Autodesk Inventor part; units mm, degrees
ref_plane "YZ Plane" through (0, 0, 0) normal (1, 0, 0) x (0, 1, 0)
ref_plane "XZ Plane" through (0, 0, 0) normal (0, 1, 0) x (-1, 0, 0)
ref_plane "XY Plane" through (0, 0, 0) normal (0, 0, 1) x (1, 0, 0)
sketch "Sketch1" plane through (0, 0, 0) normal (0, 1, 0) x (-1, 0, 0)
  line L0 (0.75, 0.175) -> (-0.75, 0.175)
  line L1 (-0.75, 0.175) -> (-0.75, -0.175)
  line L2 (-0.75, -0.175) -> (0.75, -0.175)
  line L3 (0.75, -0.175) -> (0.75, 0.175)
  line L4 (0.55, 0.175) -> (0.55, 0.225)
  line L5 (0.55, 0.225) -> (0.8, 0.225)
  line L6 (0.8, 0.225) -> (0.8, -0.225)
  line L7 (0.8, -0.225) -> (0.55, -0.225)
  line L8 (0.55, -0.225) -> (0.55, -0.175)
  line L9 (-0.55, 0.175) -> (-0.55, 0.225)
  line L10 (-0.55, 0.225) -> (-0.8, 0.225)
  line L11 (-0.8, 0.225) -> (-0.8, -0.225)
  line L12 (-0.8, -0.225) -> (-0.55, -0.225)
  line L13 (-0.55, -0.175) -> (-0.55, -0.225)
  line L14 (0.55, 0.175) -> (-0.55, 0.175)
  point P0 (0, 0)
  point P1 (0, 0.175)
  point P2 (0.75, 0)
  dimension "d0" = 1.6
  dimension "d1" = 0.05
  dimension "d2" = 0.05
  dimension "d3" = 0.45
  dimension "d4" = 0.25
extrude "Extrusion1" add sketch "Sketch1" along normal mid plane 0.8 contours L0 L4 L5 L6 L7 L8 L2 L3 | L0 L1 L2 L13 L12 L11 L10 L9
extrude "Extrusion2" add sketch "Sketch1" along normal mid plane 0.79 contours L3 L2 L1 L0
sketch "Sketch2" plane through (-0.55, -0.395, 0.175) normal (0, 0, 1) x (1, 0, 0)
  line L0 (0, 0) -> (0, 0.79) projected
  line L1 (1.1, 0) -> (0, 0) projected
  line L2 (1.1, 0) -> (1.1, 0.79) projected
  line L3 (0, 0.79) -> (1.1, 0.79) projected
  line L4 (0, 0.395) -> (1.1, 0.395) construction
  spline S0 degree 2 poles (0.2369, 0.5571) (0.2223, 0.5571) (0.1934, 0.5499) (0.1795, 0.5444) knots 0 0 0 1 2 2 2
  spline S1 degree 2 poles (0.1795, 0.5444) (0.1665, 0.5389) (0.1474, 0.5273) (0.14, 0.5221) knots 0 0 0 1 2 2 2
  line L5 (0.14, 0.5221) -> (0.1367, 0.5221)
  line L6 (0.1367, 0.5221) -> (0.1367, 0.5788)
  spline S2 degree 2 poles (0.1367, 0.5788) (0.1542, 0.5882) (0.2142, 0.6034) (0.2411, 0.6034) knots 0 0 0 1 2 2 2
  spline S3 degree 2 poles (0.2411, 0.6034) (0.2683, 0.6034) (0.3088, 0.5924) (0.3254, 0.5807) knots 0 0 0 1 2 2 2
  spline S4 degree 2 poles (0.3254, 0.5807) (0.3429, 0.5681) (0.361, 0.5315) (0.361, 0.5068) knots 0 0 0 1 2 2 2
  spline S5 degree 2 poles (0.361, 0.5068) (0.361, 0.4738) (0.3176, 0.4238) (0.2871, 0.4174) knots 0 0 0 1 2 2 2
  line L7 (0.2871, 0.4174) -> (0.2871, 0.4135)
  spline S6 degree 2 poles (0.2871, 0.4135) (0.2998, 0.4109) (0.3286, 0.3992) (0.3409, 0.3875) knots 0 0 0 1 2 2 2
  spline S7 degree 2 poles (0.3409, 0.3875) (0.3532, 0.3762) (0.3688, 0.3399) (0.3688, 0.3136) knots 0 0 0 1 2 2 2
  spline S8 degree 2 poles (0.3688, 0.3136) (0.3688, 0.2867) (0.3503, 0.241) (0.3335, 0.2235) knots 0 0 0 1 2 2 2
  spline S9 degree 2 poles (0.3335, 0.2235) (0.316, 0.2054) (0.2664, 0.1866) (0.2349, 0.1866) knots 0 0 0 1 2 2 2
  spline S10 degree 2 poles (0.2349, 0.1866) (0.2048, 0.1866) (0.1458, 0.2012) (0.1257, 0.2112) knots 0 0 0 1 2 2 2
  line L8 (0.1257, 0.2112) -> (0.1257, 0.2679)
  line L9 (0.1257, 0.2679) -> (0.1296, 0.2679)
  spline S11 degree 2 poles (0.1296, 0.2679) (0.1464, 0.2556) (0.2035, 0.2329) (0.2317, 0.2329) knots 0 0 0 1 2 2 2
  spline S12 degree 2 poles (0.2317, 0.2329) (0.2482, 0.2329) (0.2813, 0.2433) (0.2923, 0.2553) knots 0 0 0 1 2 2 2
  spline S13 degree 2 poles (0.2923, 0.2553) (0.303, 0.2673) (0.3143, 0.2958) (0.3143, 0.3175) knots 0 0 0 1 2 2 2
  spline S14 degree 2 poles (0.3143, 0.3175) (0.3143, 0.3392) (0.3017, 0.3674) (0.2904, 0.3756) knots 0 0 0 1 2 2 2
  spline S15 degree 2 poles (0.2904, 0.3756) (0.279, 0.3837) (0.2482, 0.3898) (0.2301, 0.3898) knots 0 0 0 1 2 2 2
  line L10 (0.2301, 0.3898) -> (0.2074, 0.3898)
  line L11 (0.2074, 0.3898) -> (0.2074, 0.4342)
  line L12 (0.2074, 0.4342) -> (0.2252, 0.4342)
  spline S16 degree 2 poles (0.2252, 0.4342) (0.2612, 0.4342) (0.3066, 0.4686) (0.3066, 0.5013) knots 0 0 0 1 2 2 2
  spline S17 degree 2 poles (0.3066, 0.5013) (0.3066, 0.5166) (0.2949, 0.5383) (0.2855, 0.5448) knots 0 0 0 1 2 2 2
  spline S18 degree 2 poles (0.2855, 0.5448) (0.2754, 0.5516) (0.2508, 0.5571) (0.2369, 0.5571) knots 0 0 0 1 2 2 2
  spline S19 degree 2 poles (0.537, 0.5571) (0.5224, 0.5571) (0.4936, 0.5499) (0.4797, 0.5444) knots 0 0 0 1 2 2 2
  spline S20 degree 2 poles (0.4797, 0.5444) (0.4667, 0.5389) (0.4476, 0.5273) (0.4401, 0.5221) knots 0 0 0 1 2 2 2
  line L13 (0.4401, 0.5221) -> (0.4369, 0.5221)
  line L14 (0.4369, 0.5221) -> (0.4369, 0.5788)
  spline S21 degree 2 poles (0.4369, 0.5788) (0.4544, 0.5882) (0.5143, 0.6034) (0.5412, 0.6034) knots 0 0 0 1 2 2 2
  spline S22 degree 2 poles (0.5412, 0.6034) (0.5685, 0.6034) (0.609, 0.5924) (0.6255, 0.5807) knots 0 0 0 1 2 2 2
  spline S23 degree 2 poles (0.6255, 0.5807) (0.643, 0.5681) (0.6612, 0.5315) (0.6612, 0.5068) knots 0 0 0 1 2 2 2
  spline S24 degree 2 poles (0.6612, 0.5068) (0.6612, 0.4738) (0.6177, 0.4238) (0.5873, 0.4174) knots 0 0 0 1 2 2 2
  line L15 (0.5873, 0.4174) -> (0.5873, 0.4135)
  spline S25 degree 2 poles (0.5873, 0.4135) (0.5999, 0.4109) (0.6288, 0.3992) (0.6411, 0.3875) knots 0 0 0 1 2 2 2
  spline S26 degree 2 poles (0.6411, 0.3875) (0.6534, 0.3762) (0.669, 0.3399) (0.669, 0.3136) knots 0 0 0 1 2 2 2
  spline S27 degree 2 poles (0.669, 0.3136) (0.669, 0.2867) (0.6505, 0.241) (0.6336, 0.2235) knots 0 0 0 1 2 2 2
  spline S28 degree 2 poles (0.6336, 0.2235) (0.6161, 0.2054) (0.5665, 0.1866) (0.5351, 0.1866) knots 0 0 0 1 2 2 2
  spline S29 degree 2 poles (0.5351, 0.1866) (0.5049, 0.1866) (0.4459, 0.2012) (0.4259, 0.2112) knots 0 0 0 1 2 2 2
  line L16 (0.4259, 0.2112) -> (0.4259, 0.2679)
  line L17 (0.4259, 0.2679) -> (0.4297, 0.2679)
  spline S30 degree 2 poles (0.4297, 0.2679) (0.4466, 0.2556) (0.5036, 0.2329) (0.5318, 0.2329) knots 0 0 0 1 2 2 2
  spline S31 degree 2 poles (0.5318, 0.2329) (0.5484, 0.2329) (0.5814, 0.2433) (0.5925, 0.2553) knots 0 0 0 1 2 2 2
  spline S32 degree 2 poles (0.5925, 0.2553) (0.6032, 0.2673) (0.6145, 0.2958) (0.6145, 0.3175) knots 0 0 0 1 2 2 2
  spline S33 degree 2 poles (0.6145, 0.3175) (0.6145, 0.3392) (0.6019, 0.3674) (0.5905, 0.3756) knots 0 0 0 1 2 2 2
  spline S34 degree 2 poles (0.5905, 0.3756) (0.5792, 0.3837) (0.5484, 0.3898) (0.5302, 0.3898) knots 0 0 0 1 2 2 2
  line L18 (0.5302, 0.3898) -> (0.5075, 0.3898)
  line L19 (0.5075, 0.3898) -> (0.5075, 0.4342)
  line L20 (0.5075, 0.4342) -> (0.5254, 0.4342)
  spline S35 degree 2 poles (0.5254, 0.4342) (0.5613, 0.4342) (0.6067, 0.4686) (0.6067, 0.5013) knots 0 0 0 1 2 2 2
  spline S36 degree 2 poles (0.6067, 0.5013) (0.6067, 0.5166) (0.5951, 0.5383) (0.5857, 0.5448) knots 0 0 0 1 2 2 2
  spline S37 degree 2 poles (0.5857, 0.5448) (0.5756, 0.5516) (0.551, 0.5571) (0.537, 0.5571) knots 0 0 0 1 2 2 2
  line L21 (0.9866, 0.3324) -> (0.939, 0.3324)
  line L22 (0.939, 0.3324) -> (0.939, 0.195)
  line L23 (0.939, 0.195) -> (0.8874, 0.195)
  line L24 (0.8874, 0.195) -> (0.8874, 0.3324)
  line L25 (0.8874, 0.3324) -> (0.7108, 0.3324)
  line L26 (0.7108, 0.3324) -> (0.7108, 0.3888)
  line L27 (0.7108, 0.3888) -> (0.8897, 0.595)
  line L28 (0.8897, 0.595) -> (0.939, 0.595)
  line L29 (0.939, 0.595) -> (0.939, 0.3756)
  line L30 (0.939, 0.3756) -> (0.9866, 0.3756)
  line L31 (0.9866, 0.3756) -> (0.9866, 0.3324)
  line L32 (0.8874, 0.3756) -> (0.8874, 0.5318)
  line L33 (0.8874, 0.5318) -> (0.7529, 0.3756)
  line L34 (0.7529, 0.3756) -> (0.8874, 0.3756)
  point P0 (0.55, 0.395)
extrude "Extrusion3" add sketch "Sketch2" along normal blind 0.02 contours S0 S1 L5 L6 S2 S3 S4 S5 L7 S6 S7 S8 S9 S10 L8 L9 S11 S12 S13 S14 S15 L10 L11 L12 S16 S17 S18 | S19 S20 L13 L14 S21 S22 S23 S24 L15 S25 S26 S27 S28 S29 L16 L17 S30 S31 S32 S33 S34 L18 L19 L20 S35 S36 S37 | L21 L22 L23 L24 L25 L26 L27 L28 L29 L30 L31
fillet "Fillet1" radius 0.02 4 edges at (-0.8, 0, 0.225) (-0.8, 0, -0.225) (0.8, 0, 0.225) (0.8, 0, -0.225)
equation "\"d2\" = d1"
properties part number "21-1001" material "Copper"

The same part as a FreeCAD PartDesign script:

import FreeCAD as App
import Part
import Sketcher

V = App.Vector
Q = App.Units.Quantity


def edges_at(feature, points):
    """Names of the edges that pass closest to the given points."""
    edges = feature.Shape.Edges
    near = lambda p: min(range(len(edges)), key=lambda i: edges[i].distToShape(Part.Vertex(*p))[0])
    return sorted({f"Edge{near(p) + 1}" for p in points})

doc = App.newDocument("Part")
body = doc.addObject("PartDesign::Body", "Body")
body.AllowCompound = True

# Sketch on XZ plane
sketch1 = body.newObject("Sketcher::SketchObject", "Sketch")
sketch1.AttachmentSupport = (doc.getObject("XZ_Plane"), [""])
sketch1.MapMode = "FlatFace"
sketch1.addGeometry([
    Part.LineSegment(V(-0.55, 0.17, 0), V(-0.75, 0.17, 0)),  # 0
    Part.LineSegment(V(-0.75, 0.17, 0), V(-0.75, -0.17, 0)),  # 1
    Part.LineSegment(V(-0.75, -0.17, 0), V(-0.55, -0.17, 0)),  # 2
    Part.LineSegment(V(-0.55, -0.17, 0), V(-0.55, -0.23, 0)),  # 3
    Part.LineSegment(V(-0.55, -0.23, 0), V(-0.8, -0.23, 0)),  # 4
    Part.LineSegment(V(-0.8, -0.23, 0), V(-0.8, 0.23, 0)),  # 5
    Part.LineSegment(V(-0.8, 0.23, 0), V(-0.55, 0.23, 0)),  # 6
    Part.LineSegment(V(-0.55, 0.23, 0), V(-0.55, 0.17, 0)),  # 7
    Part.LineSegment(V(0.75, 0.17, 0), V(0.55, 0.17, 0)),  # 8
    Part.LineSegment(V(0.55, 0.17, 0), V(0.55, 0.23, 0)),  # 9
    Part.LineSegment(V(0.55, 0.23, 0), V(0.8, 0.23, 0)),  # 10
    Part.LineSegment(V(0.8, 0.23, 0), V(0.8, -0.23, 0)),  # 11
    Part.LineSegment(V(0.8, -0.23, 0), V(0.55, -0.23, 0)),  # 12
    Part.LineSegment(V(0.55, -0.23, 0), V(0.55, -0.17, 0)),  # 13
    Part.LineSegment(V(0.55, -0.17, 0), V(0.75, -0.17, 0)),  # 14
    Part.LineSegment(V(0.75, -0.17, 0), V(0.75, 0.17, 0)),  # 15
], False)
sketch1.addConstraint([
    Sketcher.Constraint("Coincident", 0, 2, 1, 1),
    Sketcher.Constraint("Coincident", 1, 2, 2, 1),
    Sketcher.Constraint("Coincident", 2, 2, 3, 1),
    Sketcher.Constraint("Coincident", 3, 2, 4, 1),
    Sketcher.Constraint("Coincident", 4, 2, 5, 1),
    Sketcher.Constraint("Coincident", 5, 2, 6, 1),
    Sketcher.Constraint("Coincident", 6, 2, 7, 1),
    Sketcher.Constraint("Coincident", 7, 2, 0, 1),
    Sketcher.Constraint("Coincident", 8, 2, 9, 1),
    Sketcher.Constraint("Coincident", 9, 2, 10, 1),
    Sketcher.Constraint("Coincident", 10, 2, 11, 1),
    Sketcher.Constraint("Coincident", 11, 2, 12, 1),
    Sketcher.Constraint("Coincident", 12, 2, 13, 1),
    Sketcher.Constraint("Coincident", 13, 2, 14, 1),
    Sketcher.Constraint("Coincident", 14, 2, 15, 1),
    Sketcher.Constraint("Coincident", 15, 2, 8, 1),
    Sketcher.Constraint("Horizontal", 0),
    Sketcher.Constraint("Vertical", 1),
    Sketcher.Constraint("Horizontal", 2),
    Sketcher.Constraint("Vertical", 3),
    Sketcher.Constraint("Horizontal", 4),
    Sketcher.Constraint("Vertical", 5),
    Sketcher.Constraint("Horizontal", 6),
    Sketcher.Constraint("Vertical", 7),
    Sketcher.Constraint("Horizontal", 8),
    Sketcher.Constraint("Vertical", 9),
    Sketcher.Constraint("Horizontal", 10),
    Sketcher.Constraint("Vertical", 11),
    Sketcher.Constraint("Horizontal", 12),
    Sketcher.Constraint("Vertical", 13),
    Sketcher.Constraint("Horizontal", 14),
    Sketcher.Constraint("Vertical", 15),
    Sketcher.Constraint("Symmetric", 2, 2, 8, 2, -1, 1),
    Sketcher.Constraint("Symmetric", 4, 2, 10, 2, -1, 1),
    Sketcher.Constraint("Symmetric", 6, 2, 12, 2, -1, 1),
    Sketcher.Constraint("Symmetric", 0, 2, 14, 2, -1, 1),
    Sketcher.Constraint("Symmetric", 7, 2, 8, 2, -2),
    Sketcher.Constraint("Horizontal", 6, 2, 9, 2),
    Sketcher.Constraint("DistanceX", 4, 2, 4, 1, 0.25),
    Sketcher.Constraint("DistanceY", 3, 2, 3, 1, 0.05),
    Sketcher.Constraint("DistanceY", 5, 1, 5, 2, 0.45),
    Sketcher.Constraint("DistanceX", 4, 2, 1, 2, 0.05),
    Sketcher.Constraint("DistanceX", 4, 2, -1, 1, 0.8),
])
pad1 = body.newObject("PartDesign::Pad", "Pad")
pad1.Profile = sketch1
pad1.Length = 0.8
pad1.Midplane = True

# Sketch on XZ plane
sketch2 = body.newObject("Sketcher::SketchObject", "Sketch001")
sketch2.AttachmentSupport = (doc.getObject("XZ_Plane"), [""])
sketch2.MapMode = "FlatFace"
sketch2.addGeometry([
    Part.LineSegment(V(-0.75, -0.17, 0), V(-0.75, 0.17, 0)),
    Part.LineSegment(V(-0.75, 0.17, 0), V(0.75, 0.17, 0)),
    Part.LineSegment(V(0.75, 0.17, 0), V(0.75, -0.17, 0)),
    Part.LineSegment(V(0.75, -0.17, 0), V(-0.75, -0.17, 0)),
], False)
sketch2.addConstraint([
    Sketcher.Constraint("Coincident", 0, 2, 1, 1),
    Sketcher.Constraint("Coincident", 1, 2, 2, 1),
    Sketcher.Constraint("Coincident", 2, 2, 3, 1),
    Sketcher.Constraint("Coincident", 3, 2, 0, 1),
    Sketcher.Constraint("Vertical", 0),
    Sketcher.Constraint("Horizontal", 1),
    Sketcher.Constraint("Vertical", 2),
    Sketcher.Constraint("Horizontal", 3),
    Sketcher.Constraint("Symmetric", 0, 2, 2, 2, -1, 1),
    Sketcher.Constraint("DistanceX", 1, 1, 1, 2, 1.5),
    Sketcher.Constraint("DistanceY", 0, 1, 0, 2, 0.35),
])
pad2 = body.newObject("PartDesign::Pad", "Pad001")
pad2.Profile = sketch2
pad2.Length = 0.79
pad2.Midplane = True

# Sketch on XY plane
sketch3 = body.newObject("Sketcher::SketchObject", "Sketch002")
sketch3.AttachmentSupport = (doc.getObject("XY_Plane"), [""])
sketch3.MapMode = "FlatFace"
sketch3.AttachmentOffset = App.Placement(V(0, 0, 0.175), App.Rotation())
sketch3.addGeometry([
    Part.BSplineCurve([V(-0.3131, 0.1621, 0), V(-0.3277, 0.1621, 0), V(-0.3566, 0.1549, 0), V(-0.3705, 0.1494, 0)], [3, 1, 3], [0, 1, 2], False, 2, [1, 1, 1, 1], False),  # 0
    Part.BSplineCurve([V(-0.2645, 0.1498, 0), V(-0.2746, 0.1566, 0), V(-0.2992, 0.1621, 0), V(-0.3131, 0.1621, 0)], [3, 1, 3], [0, 1, 2], False, 2, [1, 1, 1, 1], False),  # 1
    Part.BSplineCurve([V(-0.2434, 0.1063, 0), V(-0.2434, 0.1216, 0), V(-0.2551, 0.1433, 0), V(-0.2645, 0.1498, 0)], [3, 1, 3], [0, 1, 2], False, 2, [1, 1, 1, 1], False),  # 2
    Part.BSplineCurve([V(-0.3248, 0.0392, 0), V(-0.2888, 0.0392, 0), V(-0.2434, 0.0736, 0), V(-0.2434, 0.1063, 0)], [3, 1, 3], [0, 1, 2], False, 2, [1, 1, 1, 1], False),  # 3
    Part.LineSegment(V(-0.3248, 0.0392, 0), V(-0.3426, 0.0392, 0)),  # 4
    Part.LineSegment(V(-0.3426, 0.0392, 0), V(-0.3426, -0.0052, 0)),  # 5
    Part.LineSegment(V(-0.3426, -0.0052, 0), V(-0.3199, -0.0052, 0)),  # 6
    Part.BSplineCurve([V(-0.2596, -0.0194, 0), V(-0.271, -0.0113, 0), V(-0.3018, -0.0052, 0), V(-0.3199, -0.0052, 0)], [3, 1, 3], [0, 1, 2], False, 2, [1, 1, 1, 1], False),  # 7
    Part.BSplineCurve([V(-0.2357, -0.0775, 0), V(-0.2357, -0.0558, 0), V(-0.2483, -0.0276, 0), V(-0.2596, -0.0194, 0)], [3, 1, 3], [0, 1, 2], False, 2, [1, 1, 1, 1], False),  # 8
    Part.BSplineCurve([V(-0.2577, -0.1397, 0), V(-0.247, -0.1277, 0), V(-0.2357, -0.0992, 0), V(-0.2357, -0.0775, 0)], [3, 1, 3], [0, 1, 2], False, 2, [1, 1, 1, 1], False),  # 9
    Part.BSplineCurve([V(-0.3183, -0.1621, 0), V(-0.3018, -0.1621, 0), V(-0.2687, -0.1517, 0), V(-0.2577, -0.1397, 0)], [3, 1, 3], [0, 1, 2], False, 2, [1, 1, 1, 1], False),  # 10
    Part.BSplineCurve([V(-0.4204, -0.1271, 0), V(-0.4036, -0.1394, 0), V(-0.3465, -0.1621, 0), V(-0.3183, -0.1621, 0)], [3, 1, 3], [0, 1, 2], False, 2, [1, 1, 1, 1], False),  # 11
    Part.LineSegment(V(-0.4204, -0.1271, 0), V(-0.4243, -0.1271, 0)),  # 12
    Part.LineSegment(V(-0.4243, -0.1271, 0), V(-0.4243, -0.1838, 0)),  # 13
    Part.BSplineCurve([V(-0.3151, -0.2084, 0), V(-0.3452, -0.2084, 0), V(-0.4042, -0.1938, 0), V(-0.4243, -0.1838, 0)], [3, 1, 3], [0, 1, 2], False, 2, [1, 1, 1, 1], False),  # 14
    Part.BSplineCurve([V(-0.2165, -0.1715, 0), V(-0.234, -0.1896, 0), V(-0.2836, -0.2084, 0), V(-0.3151, -0.2084, 0)], [3, 1, 3], [0, 1, 2], False, 2, [1, 1, 1, 1], False),  # 15
    Part.BSplineCurve([V(-0.1812, -0.0814, 0), V(-0.1812, -0.1083, 0), V(-0.1997, -0.154, 0), V(-0.2165, -0.1715, 0)], [3, 1, 3], [0, 1, 2], False, 2, [1, 1, 1, 1], False),  # 16
    Part.BSplineCurve([V(-0.2091, -0.0075, 0), V(-0.1968, -0.0188, 0), V(-0.1812, -0.0551, 0), V(-0.1812, -0.0814, 0)], [3, 1, 3], [0, 1, 2], False, 2, [1, 1, 1, 1], False),  # 17
    Part.BSplineCurve([V(-0.2629, 0.0185, 0), V(-0.2502, 0.0159, 0), V(-0.2214, 0.0042, 0), V(-0.2091, -0.0075, 0)], [3, 1, 3], [0, 1, 2], False, 2, [1, 1, 1, 1], False),  # 18
    Part.LineSegment(V(-0.2629, 0.0185, 0), V(-0.2629, 0.0224, 0)),  # 19
    Part.BSplineCurve([V(-0.189, 0.1118, 0), V(-0.189, 0.0788, 0), V(-0.2324, 0.0288, 0), V(-0.2629, 0.0224, 0)], [3, 1, 3], [0, 1, 2], False, 2, [1, 1, 1, 1], False),  # 20
    Part.BSplineCurve([V(-0.2246, 0.1857, 0), V(-0.2071, 0.1731, 0), V(-0.189, 0.1365, 0), V(-0.189, 0.1118, 0)], [3, 1, 3], [0, 1, 2], False, 2, [1, 1, 1, 1], False),  # 21
    Part.BSplineCurve([V(-0.3089, 0.2084, 0), V(-0.2817, 0.2084, 0), V(-0.2412, 0.1974, 0), V(-0.2246, 0.1857, 0)], [3, 1, 3], [0, 1, 2], False, 2, [1, 1, 1, 1], False),  # 22
    Part.BSplineCurve([V(-0.4133, 0.1838, 0), V(-0.3958, 0.1932, 0), V(-0.3358, 0.2084, 0), V(-0.3089, 0.2084, 0)], [3, 1, 3], [0, 1, 2], False, 2, [1, 1, 1, 1], False),  # 23
    Part.LineSegment(V(-0.4133, 0.1838, 0), V(-0.4133, 0.1271, 0)),  # 24
    Part.LineSegment(V(-0.4133, 0.1271, 0), V(-0.41, 0.1271, 0)),  # 25
    Part.BSplineCurve([V(-0.3705, 0.1494, 0), V(-0.3835, 0.1439, 0), V(-0.4026, 0.1323, 0), V(-0.41, 0.1271, 0)], [3, 1, 3], [0, 1, 2], False, 2, [1, 1, 1, 1], False),  # 26
    Part.BSplineCurve([V(-0.013, 0.1621, 0), V(-0.0276, 0.1621, 0), V(-0.0564, 0.1549, 0), V(-0.0703, 0.1494, 0)], [3, 1, 3], [0, 1, 2], False, 2, [1, 1, 1, 1], False),  # 27
    Part.BSplineCurve([V(0.0357, 0.1498, 0), V(0.0256, 0.1566, 0), V(0.001, 0.1621, 0), V(-0.013, 0.1621, 0)], [3, 1, 3], [0, 1, 2], False, 2, [1, 1, 1, 1], False),  # 28
    Part.BSplineCurve([V(0.0567, 0.1063, 0), V(0.0567, 0.1216, 0), V(0.0451, 0.1433, 0), V(0.0357, 0.1498, 0)], [3, 1, 3], [0, 1, 2], False, 2, [1, 1, 1, 1], False),  # 29
    Part.BSplineCurve([V(-0.0246, 0.0392, 0), V(0.0113, 0.0392, 0), V(0.0567, 0.0736, 0), V(0.0567, 0.1063, 0)], [3, 1, 3], [0, 1, 2], False, 2, [1, 1, 1, 1], False),  # 30
    Part.LineSegment(V(-0.0246, 0.0392, 0), V(-0.0425, 0.0392, 0)),  # 31
    Part.LineSegment(V(-0.0425, 0.0392, 0), V(-0.0425, -0.0052, 0)),  # 32
    Part.LineSegment(V(-0.0425, -0.0052, 0), V(-0.0198, -0.0052, 0)),  # 33
    Part.BSplineCurve([V(0.0405, -0.0194, 0), V(0.0292, -0.0113, 0), V(-0.0016, -0.0052, 0), V(-0.0198, -0.0052, 0)], [3, 1, 3], [0, 1, 2], False, 2, [1, 1, 1, 1], False),  # 34
    Part.BSplineCurve([V(0.0645, -0.0775, 0), V(0.0645, -0.0558, 0), V(0.0519, -0.0276, 0), V(0.0405, -0.0194, 0)], [3, 1, 3], [0, 1, 2], False, 2, [1, 1, 1, 1], False),  # 35
    Part.BSplineCurve([V(0.0425, -0.1397, 0), V(0.0532, -0.1277, 0), V(0.0645, -0.0992, 0), V(0.0645, -0.0775, 0)], [3, 1, 3], [0, 1, 2], False, 2, [1, 1, 1, 1], False),  # 36
    Part.BSplineCurve([V(-0.0182, -0.1621, 0), V(-0.0016, -0.1621, 0), V(0.0314, -0.1517, 0), V(0.0425, -0.1397, 0)], [3, 1, 3], [0, 1, 2], False, 2, [1, 1, 1, 1], False),  # 37
    Part.BSplineCurve([V(-0.1203, -0.1271, 0), V(-0.1034, -0.1394, 0), V(-0.0464, -0.1621, 0), V(-0.0182, -0.1621, 0)], [3, 1, 3], [0, 1, 2], False, 2, [1, 1, 1, 1], False),  # 38
    Part.LineSegment(V(-0.1203, -0.1271, 0), V(-0.1241, -0.1271, 0)),  # 39
    Part.LineSegment(V(-0.1241, -0.1271, 0), V(-0.1241, -0.1838, 0)),  # 40
    Part.BSplineCurve([V(-0.0149, -0.2084, 0), V(-0.0451, -0.2084, 0), V(-0.1041, -0.1938, 0), V(-0.1241, -0.1838, 0)], [3, 1, 3], [0, 1, 2], False, 2, [1, 1, 1, 1], False),  # 41
    Part.BSplineCurve([V(0.0836, -0.1715, 0), V(0.0661, -0.1896, 0), V(0.0165, -0.2084, 0), V(-0.0149, -0.2084, 0)], [3, 1, 3], [0, 1, 2], False, 2, [1, 1, 1, 1], False),  # 42
    Part.BSplineCurve([V(0.119, -0.0814, 0), V(0.119, -0.1083, 0), V(0.1005, -0.154, 0), V(0.0836, -0.1715, 0)], [3, 1, 3], [0, 1, 2], False, 2, [1, 1, 1, 1], False),  # 43
    Part.BSplineCurve([V(0.0911, -0.0075, 0), V(0.1034, -0.0188, 0), V(0.119, -0.0551, 0), V(0.119, -0.0814, 0)], [3, 1, 3], [0, 1, 2], False, 2, [1, 1, 1, 1], False),  # 44
    Part.BSplineCurve([V(0.0373, 0.0185, 0), V(0.0499, 0.0159, 0), V(0.0788, 0.0042, 0), V(0.0911, -0.0075, 0)], [3, 1, 3], [0, 1, 2], False, 2, [1, 1, 1, 1], False),  # 45
    Part.LineSegment(V(0.0373, 0.0185, 0), V(0.0373, 0.0224, 0)),  # 46
    Part.BSplineCurve([V(0.1112, 0.1118, 0), V(0.1112, 0.0788, 0), V(0.0677, 0.0288, 0), V(0.0373, 0.0224, 0)], [3, 1, 3], [0, 1, 2], False, 2, [1, 1, 1, 1], False),  # 47
    Part.BSplineCurve([V(0.0755, 0.1857, 0), V(0.093, 0.1731, 0), V(0.1112, 0.1365, 0), V(0.1112, 0.1118, 0)], [3, 1, 3], [0, 1, 2], False, 2, [1, 1, 1, 1], False),  # 48
    Part.BSplineCurve([V(-0.0088, 0.2084, 0), V(0.0185, 0.2084, 0), V(0.059, 0.1974, 0), V(0.0755, 0.1857, 0)], [3, 1, 3], [0, 1, 2], False, 2, [1, 1, 1, 1], False),  # 49
    Part.BSplineCurve([V(-0.1131, 0.1838, 0), V(-0.0956, 0.1932, 0), V(-0.0357, 0.2084, 0), V(-0.0088, 0.2084, 0)], [3, 1, 3], [0, 1, 2], False, 2, [1, 1, 1, 1], False),  # 50
    Part.LineSegment(V(-0.1131, 0.1838, 0), V(-0.1131, 0.1271, 0)),  # 51
    Part.LineSegment(V(-0.1131, 0.1271, 0), V(-0.1099, 0.1271, 0)),  # 52
    Part.BSplineCurve([V(-0.0703, 0.1494, 0), V(-0.0833, 0.1439, 0), V(-0.1024, 0.1323, 0), V(-0.1099, 0.1271, 0)], [3, 1, 3], [0, 1, 2], False, 2, [1, 1, 1, 1], False),  # 53
    Part.LineSegment(V(0.389, -0.0626, 0), V(0.4366, -0.0626, 0)),  # 54
    Part.LineSegment(V(0.4366, -0.0626, 0), V(0.4366, -0.0194, 0)),  # 55
    Part.LineSegment(V(0.4366, -0.0194, 0), V(0.389, -0.0194, 0)),  # 56
    Part.LineSegment(V(0.389, -0.0194, 0), V(0.389, 0.2, 0)),  # 57
    Part.LineSegment(V(0.389, 0.2, 0), V(0.3397, 0.2, 0)),  # 58
    Part.LineSegment(V(0.3397, 0.2, 0), V(0.1608, -0.0062, 0)),  # 59
    Part.LineSegment(V(0.1608, -0.0062, 0), V(0.1608, -0.0626, 0)),  # 60
    Part.LineSegment(V(0.1608, -0.0626, 0), V(0.3374, -0.0626, 0)),  # 61
    Part.LineSegment(V(0.3374, -0.0626, 0), V(0.3374, -0.2, 0)),  # 62
    Part.LineSegment(V(0.3374, -0.2, 0), V(0.389, -0.2, 0)),  # 63
    Part.LineSegment(V(0.389, -0.2, 0), V(0.389, -0.0626, 0)),  # 64
    Part.LineSegment(V(0.3374, 0.1368, 0), V(0.3374, -0.0194, 0)),  # 65
    Part.LineSegment(V(0.3374, -0.0194, 0), V(0.2029, -0.0194, 0)),  # 66
    Part.LineSegment(V(0.2029, -0.0194, 0), V(0.3374, 0.1368, 0)),  # 67
], False)
sketch3.addConstraint([
    Sketcher.Constraint("Block", 0),
    Sketcher.Constraint("Block", 1),
    Sketcher.Constraint("Block", 2),
    Sketcher.Constraint("Block", 3),
    Sketcher.Constraint("Block", 7),
    Sketcher.Constraint("Block", 8),
    Sketcher.Constraint("Block", 9),
    Sketcher.Constraint("Block", 10),
    Sketcher.Constraint("Block", 11),
    Sketcher.Constraint("Block", 14),
    Sketcher.Constraint("Block", 15),
    Sketcher.Constraint("Block", 16),
    Sketcher.Constraint("Block", 17),
    Sketcher.Constraint("Block", 18),
    Sketcher.Constraint("Block", 20),
    Sketcher.Constraint("Block", 21),
    Sketcher.Constraint("Block", 22),
    Sketcher.Constraint("Block", 23),
    Sketcher.Constraint("Block", 26),
    Sketcher.Constraint("Block", 27),
    Sketcher.Constraint("Block", 28),
    Sketcher.Constraint("Block", 29),
    Sketcher.Constraint("Block", 30),
    Sketcher.Constraint("Block", 34),
    Sketcher.Constraint("Block", 35),
    Sketcher.Constraint("Block", 36),
    Sketcher.Constraint("Block", 37),
    Sketcher.Constraint("Block", 38),
    Sketcher.Constraint("Block", 41),
    Sketcher.Constraint("Block", 42),
    Sketcher.Constraint("Block", 43),
    Sketcher.Constraint("Block", 44),
    Sketcher.Constraint("Block", 45),
    Sketcher.Constraint("Block", 47),
    Sketcher.Constraint("Block", 48),
    Sketcher.Constraint("Block", 49),
    Sketcher.Constraint("Block", 50),
    Sketcher.Constraint("Block", 53),
    Sketcher.Constraint("Coincident", 3, 1, 4, 1),
    Sketcher.Constraint("Coincident", 4, 2, 5, 1),
    Sketcher.Constraint("Coincident", 5, 2, 6, 1),
    Sketcher.Constraint("Coincident", 6, 2, 7, 2),
    Sketcher.Constraint("Coincident", 11, 1, 12, 1),
    Sketcher.Constraint("Coincident", 12, 2, 13, 1),
    Sketcher.Constraint("Coincident", 13, 2, 14, 2),
    Sketcher.Constraint("Coincident", 18, 1, 19, 1),
    Sketcher.Constraint("Coincident", 19, 2, 20, 2),
    Sketcher.Constraint("Coincident", 23, 1, 24, 1),
    Sketcher.Constraint("Coincident", 24, 2, 25, 1),
    Sketcher.Constraint("Coincident", 25, 2, 26, 2),
    Sketcher.Constraint("Coincident", 30, 1, 31, 1),
    Sketcher.Constraint("Coincident", 31, 2, 32, 1),
    Sketcher.Constraint("Coincident", 32, 2, 33, 1),
    Sketcher.Constraint("Coincident", 33, 2, 34, 2),
    Sketcher.Constraint("Coincident", 38, 1, 39, 1),
    Sketcher.Constraint("Coincident", 39, 2, 40, 1),
    Sketcher.Constraint("Coincident", 40, 2, 41, 2),
    Sketcher.Constraint("Coincident", 45, 1, 46, 1),
    Sketcher.Constraint("Coincident", 46, 2, 47, 2),
    Sketcher.Constraint("Coincident", 50, 1, 51, 1),
    Sketcher.Constraint("Coincident", 51, 2, 52, 1),
    Sketcher.Constraint("Coincident", 52, 2, 53, 2),
    Sketcher.Constraint("Coincident", 54, 2, 55, 1),
    Sketcher.Constraint("Coincident", 55, 2, 56, 1),
    Sketcher.Constraint("Coincident", 56, 2, 57, 1),
    Sketcher.Constraint("Coincident", 57, 2, 58, 1),
    Sketcher.Constraint("Coincident", 58, 2, 59, 1),
    Sketcher.Constraint("Coincident", 59, 2, 60, 1),
    Sketcher.Constraint("Coincident", 60, 2, 61, 1),
    Sketcher.Constraint("Coincident", 61, 2, 62, 1),
    Sketcher.Constraint("Coincident", 62, 2, 63, 1),
    Sketcher.Constraint("Coincident", 63, 2, 64, 1),
    Sketcher.Constraint("Coincident", 64, 2, 54, 1),
    Sketcher.Constraint("Coincident", 65, 2, 66, 1),
    Sketcher.Constraint("Coincident", 66, 2, 67, 1),
    Sketcher.Constraint("Coincident", 67, 2, 65, 1),
    Sketcher.Constraint("Horizontal", 4),
    Sketcher.Constraint("Vertical", 5),
    Sketcher.Constraint("Horizontal", 6),
    Sketcher.Constraint("Horizontal", 12),
    Sketcher.Constraint("Vertical", 13),
    Sketcher.Constraint("Vertical", 24),
    Sketcher.Constraint("Horizontal", 25),
    Sketcher.Constraint("Horizontal", 31),
    Sketcher.Constraint("Vertical", 32),
    Sketcher.Constraint("Horizontal", 33),
    Sketcher.Constraint("Horizontal", 39),
    Sketcher.Constraint("Vertical", 40),
    Sketcher.Constraint("Vertical", 51),
    Sketcher.Constraint("Horizontal", 52),
    Sketcher.Constraint("Horizontal", 54),
    Sketcher.Constraint("Vertical", 55),
    Sketcher.Constraint("Horizontal", 56),
    Sketcher.Constraint("Vertical", 57),
    Sketcher.Constraint("Horizontal", 58),
    Sketcher.Constraint("Vertical", 60),
    Sketcher.Constraint("Horizontal", 61),
    Sketcher.Constraint("Vertical", 62),
    Sketcher.Constraint("Horizontal", 63),
    Sketcher.Constraint("Vertical", 64),
    Sketcher.Constraint("Vertical", 65),
    Sketcher.Constraint("Horizontal", 66),
    Sketcher.Constraint("Symmetric", 57, 2, 63, 2, -1),
    Sketcher.Constraint("Horizontal", 54, 2, 60, 2),
    Sketcher.Constraint("Horizontal", 56, 2, 65, 2),
    Sketcher.Constraint("Vertical", 62, 2, 65, 2),
    Sketcher.Constraint("Equal", 4, 31),
    Sketcher.Constraint("DistanceY", -1, 1, 57, 2, 0.2),
    Sketcher.Constraint("Angle", 67, Q("49.269 deg")),
    Sketcher.Constraint("DistanceX", 31, 2, 31, 1, 0.018),
    Sketcher.Constraint("Distance", 59, 0.273),
    Sketcher.Constraint("DistanceX", 54, 1, 54, 2, 0.0476),
    Sketcher.Constraint("DistanceX", 58, 2, 58, 1, 0.0493),
    Sketcher.Constraint("DistanceX", 61, 1, 61, 2, 0.1766),
    Sketcher.Constraint("DistanceX", 63, 1, 63, 2, 0.0516),
    Sketcher.Constraint("DistanceX", 66, 2, 66, 1, 0.1345),
    Sketcher.Constraint("DistanceY", 55, 1, 55, 2, 0.0432),
    Sketcher.Constraint("DistanceY", 57, 1, 57, 2, 0.2194),
    Sketcher.Constraint("DistanceX", -1, 1, 56, 2, 0.389),
])
pad3 = body.newObject("PartDesign::Pad", "Pad002")
pad3.Profile = sketch3
pad3.Length = 0.02
doc.recompute()

fillet = body.newObject("PartDesign::Fillet", "Fillet")
fillet.Base = (pad3, edges_at(pad3, [
    (-0.8, 0, 0.225),
    (-0.8, 0, -0.225),
    (0.8, 0, 0.225),
    (0.8, 0, -0.225),
]))
fillet.Radius = 0.02

doc.recompute()
